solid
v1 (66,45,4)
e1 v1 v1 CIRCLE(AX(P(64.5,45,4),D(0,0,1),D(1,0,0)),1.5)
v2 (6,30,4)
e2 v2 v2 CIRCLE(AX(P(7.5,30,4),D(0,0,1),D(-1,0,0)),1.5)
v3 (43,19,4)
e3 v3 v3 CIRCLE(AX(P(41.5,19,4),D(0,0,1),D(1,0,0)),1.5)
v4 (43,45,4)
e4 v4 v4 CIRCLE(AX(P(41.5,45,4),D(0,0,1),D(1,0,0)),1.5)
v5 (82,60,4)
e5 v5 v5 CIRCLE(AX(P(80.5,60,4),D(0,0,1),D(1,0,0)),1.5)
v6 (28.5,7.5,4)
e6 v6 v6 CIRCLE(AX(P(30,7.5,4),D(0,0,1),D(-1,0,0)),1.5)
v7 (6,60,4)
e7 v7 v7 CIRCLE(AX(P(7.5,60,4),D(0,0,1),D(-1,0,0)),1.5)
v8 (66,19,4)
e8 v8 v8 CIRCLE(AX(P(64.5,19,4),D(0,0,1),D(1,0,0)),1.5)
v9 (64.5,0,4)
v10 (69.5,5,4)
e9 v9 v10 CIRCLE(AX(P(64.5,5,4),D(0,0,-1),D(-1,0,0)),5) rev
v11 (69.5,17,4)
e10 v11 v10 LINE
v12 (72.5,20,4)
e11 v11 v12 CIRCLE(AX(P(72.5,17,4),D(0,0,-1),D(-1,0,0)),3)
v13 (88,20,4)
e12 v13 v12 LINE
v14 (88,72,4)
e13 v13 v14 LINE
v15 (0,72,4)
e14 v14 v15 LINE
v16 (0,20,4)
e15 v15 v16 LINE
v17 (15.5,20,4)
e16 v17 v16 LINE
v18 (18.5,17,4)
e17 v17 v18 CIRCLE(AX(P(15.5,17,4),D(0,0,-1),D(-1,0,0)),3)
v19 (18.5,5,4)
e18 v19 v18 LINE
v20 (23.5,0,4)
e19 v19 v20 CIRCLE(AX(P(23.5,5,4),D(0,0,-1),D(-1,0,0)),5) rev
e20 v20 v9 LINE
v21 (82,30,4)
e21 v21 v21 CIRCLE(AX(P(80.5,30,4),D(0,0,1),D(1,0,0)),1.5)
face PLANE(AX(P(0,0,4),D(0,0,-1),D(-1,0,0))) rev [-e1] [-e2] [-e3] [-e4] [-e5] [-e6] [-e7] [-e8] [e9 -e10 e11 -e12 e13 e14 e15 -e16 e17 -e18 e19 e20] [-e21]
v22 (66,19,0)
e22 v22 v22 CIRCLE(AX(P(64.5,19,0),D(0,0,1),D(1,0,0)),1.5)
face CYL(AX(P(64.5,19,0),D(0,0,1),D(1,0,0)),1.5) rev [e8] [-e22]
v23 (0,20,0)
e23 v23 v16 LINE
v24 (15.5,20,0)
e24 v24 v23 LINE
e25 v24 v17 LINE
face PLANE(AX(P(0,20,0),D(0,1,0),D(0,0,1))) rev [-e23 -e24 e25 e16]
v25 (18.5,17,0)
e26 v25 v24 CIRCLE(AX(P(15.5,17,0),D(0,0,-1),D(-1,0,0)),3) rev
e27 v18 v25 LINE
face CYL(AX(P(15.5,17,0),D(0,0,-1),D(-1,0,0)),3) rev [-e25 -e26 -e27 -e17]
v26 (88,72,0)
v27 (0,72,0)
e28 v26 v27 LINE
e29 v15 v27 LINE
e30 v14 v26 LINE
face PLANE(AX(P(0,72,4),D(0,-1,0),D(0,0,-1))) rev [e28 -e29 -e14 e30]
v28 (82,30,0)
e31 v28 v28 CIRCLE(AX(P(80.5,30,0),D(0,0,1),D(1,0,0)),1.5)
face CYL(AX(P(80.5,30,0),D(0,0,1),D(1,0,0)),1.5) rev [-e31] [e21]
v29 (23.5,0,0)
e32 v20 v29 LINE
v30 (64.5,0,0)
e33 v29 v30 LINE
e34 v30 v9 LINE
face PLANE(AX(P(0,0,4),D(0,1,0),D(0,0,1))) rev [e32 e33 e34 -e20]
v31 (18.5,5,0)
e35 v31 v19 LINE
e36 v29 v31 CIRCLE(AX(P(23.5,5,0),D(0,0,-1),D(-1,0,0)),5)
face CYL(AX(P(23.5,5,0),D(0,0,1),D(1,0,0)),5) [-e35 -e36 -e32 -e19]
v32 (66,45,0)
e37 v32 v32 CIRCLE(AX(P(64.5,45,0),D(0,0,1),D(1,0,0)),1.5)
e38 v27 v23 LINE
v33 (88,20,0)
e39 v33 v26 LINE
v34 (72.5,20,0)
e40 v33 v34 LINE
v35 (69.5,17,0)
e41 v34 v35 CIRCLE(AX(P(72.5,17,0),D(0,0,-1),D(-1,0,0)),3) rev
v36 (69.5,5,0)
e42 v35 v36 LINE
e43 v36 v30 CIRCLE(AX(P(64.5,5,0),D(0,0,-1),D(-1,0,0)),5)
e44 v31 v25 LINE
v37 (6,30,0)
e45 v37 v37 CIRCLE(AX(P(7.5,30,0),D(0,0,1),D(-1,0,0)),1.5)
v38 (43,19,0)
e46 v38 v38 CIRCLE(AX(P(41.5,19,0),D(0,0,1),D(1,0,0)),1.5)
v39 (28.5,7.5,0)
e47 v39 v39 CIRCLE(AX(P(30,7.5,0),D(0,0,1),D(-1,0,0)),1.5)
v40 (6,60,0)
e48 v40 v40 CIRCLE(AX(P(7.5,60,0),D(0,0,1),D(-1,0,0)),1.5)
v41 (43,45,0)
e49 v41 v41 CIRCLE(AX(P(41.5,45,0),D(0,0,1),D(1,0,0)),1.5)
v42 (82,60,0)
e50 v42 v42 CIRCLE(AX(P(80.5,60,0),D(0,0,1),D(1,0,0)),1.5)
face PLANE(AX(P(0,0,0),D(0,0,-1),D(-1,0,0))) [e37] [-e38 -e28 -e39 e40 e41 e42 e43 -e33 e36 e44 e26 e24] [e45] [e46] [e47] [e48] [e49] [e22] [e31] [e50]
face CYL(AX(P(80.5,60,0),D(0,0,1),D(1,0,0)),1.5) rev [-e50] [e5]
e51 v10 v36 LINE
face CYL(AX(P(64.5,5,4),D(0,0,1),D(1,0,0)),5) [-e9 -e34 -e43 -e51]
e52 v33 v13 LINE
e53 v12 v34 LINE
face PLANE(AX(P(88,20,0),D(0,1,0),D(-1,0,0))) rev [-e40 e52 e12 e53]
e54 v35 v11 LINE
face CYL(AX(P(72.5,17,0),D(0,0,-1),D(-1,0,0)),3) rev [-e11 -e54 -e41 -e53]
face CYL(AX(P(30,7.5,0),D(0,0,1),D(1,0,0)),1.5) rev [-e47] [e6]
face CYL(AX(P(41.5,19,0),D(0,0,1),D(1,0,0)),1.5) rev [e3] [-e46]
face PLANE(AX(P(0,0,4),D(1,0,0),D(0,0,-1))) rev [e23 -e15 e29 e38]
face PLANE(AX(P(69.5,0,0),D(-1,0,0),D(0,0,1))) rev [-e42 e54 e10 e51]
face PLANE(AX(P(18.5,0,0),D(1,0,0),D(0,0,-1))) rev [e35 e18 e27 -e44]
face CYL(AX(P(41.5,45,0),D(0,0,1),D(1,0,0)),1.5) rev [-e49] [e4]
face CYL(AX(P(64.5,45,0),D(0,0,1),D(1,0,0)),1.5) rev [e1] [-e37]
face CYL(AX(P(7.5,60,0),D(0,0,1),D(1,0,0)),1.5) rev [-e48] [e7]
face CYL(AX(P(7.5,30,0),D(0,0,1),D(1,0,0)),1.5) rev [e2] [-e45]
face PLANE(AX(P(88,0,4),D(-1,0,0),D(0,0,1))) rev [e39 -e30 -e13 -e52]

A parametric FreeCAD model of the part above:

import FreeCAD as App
import Part
import Sketcher
from FreeCAD import Vector


def edges_at(feature, points):
    """Names of the edges that pass closest to the given points."""
    edges = feature.Shape.Edges
    near = lambda p: min(range(len(edges)), key=lambda i: edges[i].distToShape(Part.Vertex(*p))[0])
    return sorted({f"Edge{near(p) + 1}" for p in points})

doc = App.newDocument("Part")
body = doc.addObject("PartDesign::Body", "Body")

sketch1 = body.newObject("Sketcher::SketchObject", "Sketch")
sketch1.AttachmentSupport = (doc.getObject("XY_Plane"), [""])
sketch1.MapMode = "FlatFace"
sketch1.addGeometry([
    Part.LineSegment(Vector(0, 72, 0), Vector(0, 0, 0)),
    Part.LineSegment(Vector(0, 0, 0), Vector(88, 0, 0)),
    Part.LineSegment(Vector(88, 0, 0), Vector(88, 72, 0)),
    Part.LineSegment(Vector(88, 72, 0), Vector(0, 72, 0)),
], False)
sketch1.addConstraint([
    Sketcher.Constraint("Coincident", 0, 2, 1, 1),
    Sketcher.Constraint("Coincident", 1, 2, 2, 1),
    Sketcher.Constraint("Coincident", 2, 2, 3, 1),
    Sketcher.Constraint("Coincident", 3, 2, 0, 1),
    Sketcher.Constraint("Vertical", 0),
    Sketcher.Constraint("Horizontal", 1),
    Sketcher.Constraint("Vertical", 2),
    Sketcher.Constraint("Horizontal", 3),
    Sketcher.Constraint("Coincident", 0, 2, -1, 1),
    Sketcher.Constraint("DistanceX", 1, 1, 1, 2, 88.0),
    Sketcher.Constraint("DistanceY", 0, 2, 0, 1, 72.0),
])
pad1 = body.newObject("PartDesign::Pad", "Pad")
pad1.Profile = sketch1
pad1.Length = 4

sketch2 = body.newObject("Sketcher::SketchObject", "Sketch001")
sketch2.AttachmentSupport = (doc.getObject("XY_Plane"), [""])
sketch2.MapMode = "FlatFace"
sketch2.AttachmentOffset = App.Placement(Vector(0, 0, 4), App.Rotation())
sketch2.addGeometry([
    Part.LineSegment(Vector(0, 20, 0), Vector(0, 0, 0)),
    Part.LineSegment(Vector(0, 0, 0), Vector(18.5, 0, 0)),
    Part.LineSegment(Vector(18.5, 0, 0), Vector(18.5, 20, 0)),
    Part.LineSegment(Vector(18.5, 20, 0), Vector(0, 20, 0)),
], False)
sketch2.addConstraint([
    Sketcher.Constraint("Coincident", 0, 2, 1, 1),
    Sketcher.Constraint("Coincident", 1, 2, 2, 1),
    Sketcher.Constraint("Coincident", 2, 2, 3, 1),
    Sketcher.Constraint("Coincident", 3, 2, 0, 1),
    Sketcher.Constraint("Vertical", 0),
    Sketcher.Constraint("Horizontal", 1),
    Sketcher.Constraint("Vertical", 2),
    Sketcher.Constraint("Horizontal", 3),
    Sketcher.Constraint("Coincident", 0, 2, -1, 1),
    Sketcher.Constraint("DistanceY", 0, 2, 0, 1, 20.0),
    Sketcher.Constraint("DistanceX", 1, 1, 1, 2, 18.5),
])
pocket1 = body.newObject("PartDesign::Pocket", "Pocket")
pocket1.Profile = sketch2
pocket1.Type = "ThroughAll"
doc.recompute()

fillet = body.newObject("PartDesign::Fillet", "Fillet")
fillet.Base = (pocket1, edges_at(pocket1, [(18.5, 20, 2)]))
fillet.Radius = 3

sketch3 = body.newObject("Sketcher::SketchObject", "Sketch002")
sketch3.AttachmentSupport = (doc.getObject("XY_Plane"), [""])
sketch3.MapMode = "FlatFace"
sketch3.AttachmentOffset = App.Placement(Vector(0, 0, 4), App.Rotation())
sketch3.addGeometry([
    Part.LineSegment(Vector(69.5, 20, 0), Vector(69.5, 0, 0)),
    Part.LineSegment(Vector(69.5, 0, 0), Vector(88, 0, 0)),
    Part.LineSegment(Vector(88, 0, 0), Vector(88, 20, 0)),
    Part.LineSegment(Vector(88, 20, 0), Vector(69.5, 20, 0)),
], False)
sketch3.addConstraint([
    Sketcher.Constraint("Coincident", 0, 2, 1, 1),
    Sketcher.Constraint("Coincident", 1, 2, 2, 1),
    Sketcher.Constraint("Coincident", 2, 2, 3, 1),
    Sketcher.Constraint("Coincident", 3, 2, 0, 1),
    Sketcher.Constraint("Vertical", 0),
    Sketcher.Constraint("Horizontal", 1),
    Sketcher.Constraint("Vertical", 2),
    Sketcher.Constraint("Horizontal", 3),
    Sketcher.Constraint("PointOnObject", 0, 2, -1),
    Sketcher.Constraint("DistanceY", 0, 2, 0, 1, 20.0),
    Sketcher.Constraint("DistanceX", 1, 1, 1, 2, 18.5),
    Sketcher.Constraint("DistanceX", -1, 1, 1, 2, 88.0),
])
pocket2 = body.newObject("PartDesign::Pocket", "Pocket001")
pocket2.Profile = sketch3
pocket2.Type = "ThroughAll"
doc.recompute()

fillet2 = body.newObject("PartDesign::Fillet", "Fillet001")
fillet2.Base = (pocket2, edges_at(pocket2, [(69.5, 20, 2)]))
fillet2.Radius = 3

sketch4 = body.newObject("Sketcher::SketchObject", "Sketch003")
sketch4.AttachmentSupport = (doc.getObject("XY_Plane"), [""])
sketch4.MapMode = "FlatFace"
sketch4.AttachmentOffset = App.Placement(Vector(0, 0, 4), App.Rotation())
sketch4.addGeometry([
    Part.Circle(Vector(80.5, 60, 0), Vector(0, 0, 1), 1.5),
    Part.Circle(Vector(80.5, 30, 0), Vector(0, 0, 1), 1.5),
    Part.Circle(Vector(30, 7.5, 0), Vector(0, 0, 1), 1.5),
    Part.Circle(Vector(7.5, 30, 0), Vector(0, 0, 1), 1.5),
    Part.Circle(Vector(7.5, 60, 0), Vector(0, 0, 1), 1.5),
], False)
sketch4.addConstraint([
    Sketcher.Constraint("Equal", 0, 1),
    Sketcher.Constraint("Equal", 1, 2),
    Sketcher.Constraint("Equal", 2, 3),
    Sketcher.Constraint("Equal", 3, 4),
    Sketcher.Constraint("Horizontal", 1, 3, 3, 3),
    Sketcher.Constraint("Horizontal", 0, 3, 4, 3),
    Sketcher.Constraint("Vertical", 0, 3, 1, 3),
    Sketcher.Constraint("Vertical", 3, 3, 4, 3),
    Sketcher.Constraint("Diameter", 0, 3.0),
    Sketcher.Constraint("DistanceY", -1, 1, 0, 3, 60.0),
    Sketcher.Constraint("DistanceY", -1, 1, 1, 3, 30.0),
    Sketcher.Constraint("DistanceX", -1, 1, 2, 3, 30.0),
    Sketcher.Constraint("DistanceX", 3, 3, 1, 3, 73.0),
    Sketcher.Constraint("DistanceX", -1, 1, 0, 3, 80.5),
    Sketcher.Constraint("DistanceY", -1, 1, 2, 3, 7.5),
])
pocket3 = body.newObject("PartDesign::Pocket", "Pocket002")
pocket3.Profile = sketch4
pocket3.Type = "ThroughAll"

sketch5 = body.newObject("Sketcher::SketchObject", "Sketch004")
sketch5.AttachmentSupport = (doc.getObject("XY_Plane"), [""])
sketch5.MapMode = "FlatFace"
sketch5.AttachmentOffset = App.Placement(Vector(0, 0, 4), App.Rotation())
sketch5.addGeometry([
    Part.Circle(Vector(41.5, 45, 0), Vector(0, 0, 1), 1.5),
    Part.Circle(Vector(64.5, 45, 0), Vector(0, 0, 1), 1.5),
    Part.Circle(Vector(64.5, 19, 0), Vector(0, 0, 1), 1.5),
    Part.Circle(Vector(41.5, 19, 0), Vector(0, 0, 1), 1.5),
], False)
sketch5.addConstraint([
    Sketcher.Constraint("Equal", 0, 1),
    Sketcher.Constraint("Equal", 1, 2),
    Sketcher.Constraint("Equal", 2, 3),
    Sketcher.Constraint("Horizontal", 0, 3, 1, 3),
    Sketcher.Constraint("Horizontal", 2, 3, 3, 3),
    Sketcher.Constraint("Vertical", 1, 3, 2, 3),
    Sketcher.Constraint("Vertical", 0, 3, 3, 3),
    Sketcher.Constraint("Diameter", 0, 3.0),
    Sketcher.Constraint("DistanceY", -1, 1, 0, 3, 45.0),
    Sketcher.Constraint("DistanceY", -1, 1, 2, 3, 19.0),
    Sketcher.Constraint("DistanceX", 0, 3, 1, 3, 23.0),
    Sketcher.Constraint("DistanceX", -1, 1, 0, 3, 41.5),
])
pocket4 = body.newObject("PartDesign::Pocket", "Pocket003")
pocket4.Profile = sketch5
pocket4.Type = "ThroughAll"
doc.recompute()

fillet3 = body.newObject("PartDesign::Fillet", "Fillet002")
fillet3.Base = (pocket4, edges_at(pocket4, [(18.5, 0, 2), (69.5, 0, 2)]))
fillet3.Radius = 5

doc.recompute()
